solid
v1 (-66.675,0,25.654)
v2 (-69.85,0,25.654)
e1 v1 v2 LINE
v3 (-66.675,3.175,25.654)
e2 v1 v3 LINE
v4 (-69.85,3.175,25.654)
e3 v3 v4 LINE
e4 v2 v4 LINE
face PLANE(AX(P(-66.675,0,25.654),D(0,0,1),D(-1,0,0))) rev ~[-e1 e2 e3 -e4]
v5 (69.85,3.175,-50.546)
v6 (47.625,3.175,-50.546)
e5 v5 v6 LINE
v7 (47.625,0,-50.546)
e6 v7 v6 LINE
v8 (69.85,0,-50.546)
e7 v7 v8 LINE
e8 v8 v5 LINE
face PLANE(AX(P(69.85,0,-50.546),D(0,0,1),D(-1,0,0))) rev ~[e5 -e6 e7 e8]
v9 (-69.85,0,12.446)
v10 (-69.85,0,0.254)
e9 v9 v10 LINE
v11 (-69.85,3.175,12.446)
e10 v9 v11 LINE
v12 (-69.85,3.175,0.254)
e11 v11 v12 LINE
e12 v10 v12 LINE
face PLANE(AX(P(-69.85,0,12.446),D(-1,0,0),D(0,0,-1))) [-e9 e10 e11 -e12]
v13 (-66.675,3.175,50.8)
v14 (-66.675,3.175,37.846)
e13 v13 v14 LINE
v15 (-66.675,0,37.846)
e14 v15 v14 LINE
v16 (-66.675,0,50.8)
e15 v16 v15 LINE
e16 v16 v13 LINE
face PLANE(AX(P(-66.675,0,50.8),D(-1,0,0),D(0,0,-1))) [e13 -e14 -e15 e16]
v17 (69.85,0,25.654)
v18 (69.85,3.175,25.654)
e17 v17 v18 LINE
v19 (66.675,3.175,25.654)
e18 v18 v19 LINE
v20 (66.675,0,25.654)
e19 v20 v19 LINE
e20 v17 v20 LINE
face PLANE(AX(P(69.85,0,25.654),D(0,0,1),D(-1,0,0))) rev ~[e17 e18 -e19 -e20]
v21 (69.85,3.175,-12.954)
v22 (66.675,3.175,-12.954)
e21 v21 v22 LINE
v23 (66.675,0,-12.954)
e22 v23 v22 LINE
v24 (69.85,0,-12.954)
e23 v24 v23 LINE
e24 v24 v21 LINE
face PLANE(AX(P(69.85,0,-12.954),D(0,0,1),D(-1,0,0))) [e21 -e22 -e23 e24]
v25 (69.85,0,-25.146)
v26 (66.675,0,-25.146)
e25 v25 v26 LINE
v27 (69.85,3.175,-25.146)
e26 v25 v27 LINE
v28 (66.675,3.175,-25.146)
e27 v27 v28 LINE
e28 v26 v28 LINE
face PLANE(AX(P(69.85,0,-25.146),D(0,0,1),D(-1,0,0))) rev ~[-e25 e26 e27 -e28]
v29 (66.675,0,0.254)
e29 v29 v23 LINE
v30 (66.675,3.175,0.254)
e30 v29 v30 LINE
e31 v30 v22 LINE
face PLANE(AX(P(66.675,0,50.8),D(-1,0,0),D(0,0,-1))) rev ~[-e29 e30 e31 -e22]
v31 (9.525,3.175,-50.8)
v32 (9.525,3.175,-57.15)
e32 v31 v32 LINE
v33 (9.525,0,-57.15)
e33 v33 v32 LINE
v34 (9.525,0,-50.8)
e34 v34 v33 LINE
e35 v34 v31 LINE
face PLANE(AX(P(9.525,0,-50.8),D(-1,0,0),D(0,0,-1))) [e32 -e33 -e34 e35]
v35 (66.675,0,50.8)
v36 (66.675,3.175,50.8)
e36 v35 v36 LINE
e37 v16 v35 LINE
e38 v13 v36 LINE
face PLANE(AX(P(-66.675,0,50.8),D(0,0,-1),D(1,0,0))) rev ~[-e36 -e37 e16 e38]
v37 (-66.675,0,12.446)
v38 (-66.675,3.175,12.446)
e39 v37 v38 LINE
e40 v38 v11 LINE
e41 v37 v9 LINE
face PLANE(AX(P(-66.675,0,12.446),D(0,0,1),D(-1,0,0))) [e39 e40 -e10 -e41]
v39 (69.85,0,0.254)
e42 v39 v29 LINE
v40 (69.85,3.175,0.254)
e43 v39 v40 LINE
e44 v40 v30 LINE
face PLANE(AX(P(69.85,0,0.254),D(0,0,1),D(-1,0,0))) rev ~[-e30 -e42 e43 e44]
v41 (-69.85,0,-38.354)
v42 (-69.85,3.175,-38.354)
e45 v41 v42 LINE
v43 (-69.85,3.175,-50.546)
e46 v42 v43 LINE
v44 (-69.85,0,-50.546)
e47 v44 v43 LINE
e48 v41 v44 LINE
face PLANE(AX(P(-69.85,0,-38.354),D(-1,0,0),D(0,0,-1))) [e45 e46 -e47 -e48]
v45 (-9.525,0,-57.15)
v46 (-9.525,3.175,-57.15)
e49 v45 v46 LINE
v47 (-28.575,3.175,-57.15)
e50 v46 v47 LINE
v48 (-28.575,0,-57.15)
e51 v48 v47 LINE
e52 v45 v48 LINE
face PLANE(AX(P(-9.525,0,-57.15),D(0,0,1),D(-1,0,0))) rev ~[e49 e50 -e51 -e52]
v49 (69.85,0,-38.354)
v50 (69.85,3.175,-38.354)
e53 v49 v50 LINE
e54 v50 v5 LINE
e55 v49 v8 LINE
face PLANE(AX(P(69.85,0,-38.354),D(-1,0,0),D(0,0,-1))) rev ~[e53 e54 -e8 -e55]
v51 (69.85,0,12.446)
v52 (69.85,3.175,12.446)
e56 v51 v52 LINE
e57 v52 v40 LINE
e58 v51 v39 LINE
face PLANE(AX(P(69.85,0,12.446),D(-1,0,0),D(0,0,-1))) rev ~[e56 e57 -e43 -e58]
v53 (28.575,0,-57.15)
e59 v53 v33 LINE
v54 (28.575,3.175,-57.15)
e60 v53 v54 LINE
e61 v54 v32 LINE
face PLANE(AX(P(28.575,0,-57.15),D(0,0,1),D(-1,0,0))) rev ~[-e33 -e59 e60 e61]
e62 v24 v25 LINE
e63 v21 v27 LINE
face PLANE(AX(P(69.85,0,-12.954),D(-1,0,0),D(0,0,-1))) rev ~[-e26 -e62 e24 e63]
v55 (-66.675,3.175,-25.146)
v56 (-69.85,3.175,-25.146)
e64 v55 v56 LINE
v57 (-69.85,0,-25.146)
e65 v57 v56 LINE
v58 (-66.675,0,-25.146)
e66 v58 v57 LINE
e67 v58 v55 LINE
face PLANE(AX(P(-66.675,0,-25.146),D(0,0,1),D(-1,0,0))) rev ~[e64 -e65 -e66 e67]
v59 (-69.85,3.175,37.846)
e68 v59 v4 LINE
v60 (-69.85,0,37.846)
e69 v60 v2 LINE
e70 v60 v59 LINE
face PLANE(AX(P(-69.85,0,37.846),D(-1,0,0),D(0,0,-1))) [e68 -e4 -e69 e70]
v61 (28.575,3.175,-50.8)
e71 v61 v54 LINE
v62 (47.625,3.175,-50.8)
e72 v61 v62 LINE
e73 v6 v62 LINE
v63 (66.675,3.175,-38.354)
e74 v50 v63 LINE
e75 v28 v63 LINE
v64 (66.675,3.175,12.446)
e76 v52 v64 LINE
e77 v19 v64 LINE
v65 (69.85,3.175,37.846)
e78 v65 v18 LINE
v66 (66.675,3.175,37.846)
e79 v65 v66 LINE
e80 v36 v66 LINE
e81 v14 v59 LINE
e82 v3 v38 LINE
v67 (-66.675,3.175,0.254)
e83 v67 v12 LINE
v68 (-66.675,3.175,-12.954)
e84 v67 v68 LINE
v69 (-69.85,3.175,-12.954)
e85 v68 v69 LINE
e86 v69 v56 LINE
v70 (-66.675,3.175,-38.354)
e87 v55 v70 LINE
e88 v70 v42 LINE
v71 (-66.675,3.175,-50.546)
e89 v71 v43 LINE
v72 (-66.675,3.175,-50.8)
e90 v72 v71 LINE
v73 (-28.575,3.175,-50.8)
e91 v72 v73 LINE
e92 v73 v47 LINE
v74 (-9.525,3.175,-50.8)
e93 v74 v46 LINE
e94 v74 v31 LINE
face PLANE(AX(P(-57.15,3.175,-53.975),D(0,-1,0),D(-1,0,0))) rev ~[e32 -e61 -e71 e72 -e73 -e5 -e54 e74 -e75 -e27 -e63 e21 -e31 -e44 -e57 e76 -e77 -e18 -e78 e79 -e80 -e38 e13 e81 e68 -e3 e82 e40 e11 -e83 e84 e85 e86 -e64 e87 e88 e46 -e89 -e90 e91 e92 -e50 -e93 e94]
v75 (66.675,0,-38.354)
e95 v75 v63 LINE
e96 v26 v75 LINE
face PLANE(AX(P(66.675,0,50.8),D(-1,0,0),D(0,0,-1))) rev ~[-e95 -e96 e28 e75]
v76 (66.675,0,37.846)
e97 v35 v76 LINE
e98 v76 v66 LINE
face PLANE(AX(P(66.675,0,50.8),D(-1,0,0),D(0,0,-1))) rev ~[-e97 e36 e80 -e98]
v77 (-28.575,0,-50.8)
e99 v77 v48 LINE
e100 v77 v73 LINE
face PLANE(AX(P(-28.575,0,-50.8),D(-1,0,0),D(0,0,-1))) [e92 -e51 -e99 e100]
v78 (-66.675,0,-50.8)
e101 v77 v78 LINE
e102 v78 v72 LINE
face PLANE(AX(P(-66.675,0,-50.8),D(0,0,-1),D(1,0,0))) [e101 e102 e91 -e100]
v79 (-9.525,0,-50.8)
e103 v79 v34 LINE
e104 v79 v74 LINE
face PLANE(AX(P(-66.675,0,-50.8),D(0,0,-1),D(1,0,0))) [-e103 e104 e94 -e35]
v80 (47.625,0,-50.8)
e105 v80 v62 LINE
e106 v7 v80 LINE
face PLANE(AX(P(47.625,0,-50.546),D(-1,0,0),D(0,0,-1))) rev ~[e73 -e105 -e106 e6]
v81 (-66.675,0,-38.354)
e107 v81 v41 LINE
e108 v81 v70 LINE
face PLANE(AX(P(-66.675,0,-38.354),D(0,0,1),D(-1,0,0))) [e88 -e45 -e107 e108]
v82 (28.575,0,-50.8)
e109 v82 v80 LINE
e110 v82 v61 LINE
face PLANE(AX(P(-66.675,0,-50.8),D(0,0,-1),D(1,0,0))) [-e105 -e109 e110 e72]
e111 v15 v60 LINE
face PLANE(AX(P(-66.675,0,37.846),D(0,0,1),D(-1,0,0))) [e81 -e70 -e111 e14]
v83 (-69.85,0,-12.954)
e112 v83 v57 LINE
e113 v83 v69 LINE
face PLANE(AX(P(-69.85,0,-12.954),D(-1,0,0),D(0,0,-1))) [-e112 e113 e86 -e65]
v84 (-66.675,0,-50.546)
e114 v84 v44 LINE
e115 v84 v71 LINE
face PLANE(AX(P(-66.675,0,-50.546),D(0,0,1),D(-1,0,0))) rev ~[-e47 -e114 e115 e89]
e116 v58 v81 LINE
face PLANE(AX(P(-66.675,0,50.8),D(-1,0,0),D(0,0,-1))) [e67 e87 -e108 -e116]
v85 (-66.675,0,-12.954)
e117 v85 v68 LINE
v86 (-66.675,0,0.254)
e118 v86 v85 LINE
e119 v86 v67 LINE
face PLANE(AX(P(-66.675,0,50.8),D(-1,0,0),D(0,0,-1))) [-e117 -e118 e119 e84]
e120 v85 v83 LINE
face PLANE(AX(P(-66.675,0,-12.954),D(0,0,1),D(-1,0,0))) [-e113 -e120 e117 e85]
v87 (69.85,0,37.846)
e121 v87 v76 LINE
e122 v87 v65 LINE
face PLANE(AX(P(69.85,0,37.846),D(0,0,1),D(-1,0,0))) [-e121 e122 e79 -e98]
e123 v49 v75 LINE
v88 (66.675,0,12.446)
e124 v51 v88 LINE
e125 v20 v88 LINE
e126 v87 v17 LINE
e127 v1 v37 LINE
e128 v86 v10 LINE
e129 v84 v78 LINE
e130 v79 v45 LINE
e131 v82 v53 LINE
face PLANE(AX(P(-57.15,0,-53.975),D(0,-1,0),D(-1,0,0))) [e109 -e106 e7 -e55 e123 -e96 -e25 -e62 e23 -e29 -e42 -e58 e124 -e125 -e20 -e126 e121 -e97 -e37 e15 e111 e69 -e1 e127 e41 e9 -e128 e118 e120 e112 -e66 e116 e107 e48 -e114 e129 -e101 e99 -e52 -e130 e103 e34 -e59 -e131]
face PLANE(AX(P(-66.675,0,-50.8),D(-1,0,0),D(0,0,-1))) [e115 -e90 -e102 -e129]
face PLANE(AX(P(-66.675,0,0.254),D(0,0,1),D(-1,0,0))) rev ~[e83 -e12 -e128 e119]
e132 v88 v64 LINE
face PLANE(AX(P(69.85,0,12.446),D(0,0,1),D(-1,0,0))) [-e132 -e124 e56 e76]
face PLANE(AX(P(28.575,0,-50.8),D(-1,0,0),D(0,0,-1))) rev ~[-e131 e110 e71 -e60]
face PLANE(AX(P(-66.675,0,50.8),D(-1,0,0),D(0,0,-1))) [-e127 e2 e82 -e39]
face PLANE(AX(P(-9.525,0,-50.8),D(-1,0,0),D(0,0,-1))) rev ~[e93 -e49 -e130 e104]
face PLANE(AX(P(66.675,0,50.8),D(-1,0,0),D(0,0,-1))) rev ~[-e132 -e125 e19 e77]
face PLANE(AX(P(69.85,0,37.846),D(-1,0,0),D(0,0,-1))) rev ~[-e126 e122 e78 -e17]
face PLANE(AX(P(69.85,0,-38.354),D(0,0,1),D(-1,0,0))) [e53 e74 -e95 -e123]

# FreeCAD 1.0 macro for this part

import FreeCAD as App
import Part
import Sketcher
from FreeCAD import Vector
Q = App.Units.Quantity

doc = App.newDocument("Part")
body = doc.addObject("PartDesign::Body", "Body")

sketch1 = doc.addObject("Sketcher::SketchObject", "Sketch")
body.addObject(sketch1)
sketch1.AttachmentSupport = (doc.XZ_Plane, [""])
sketch1.MapMode = "FlatFace"
sketch1.addGeometry([
    Part.LineSegment(Vector(-66.675, -50.8, 0), Vector(-66.675, 50.8, 0)),
    Part.LineSegment(Vector(-66.675, 50.8, 0), Vector(66.675, 50.8, 0)),
    Part.LineSegment(Vector(66.675, 50.8, 0), Vector(66.675, -50.8, 0)),
    Part.LineSegment(Vector(66.675, -50.8, 0), Vector(-66.675, -50.8, 0)),
], False)
sketch1.addConstraint([
    Sketcher.Constraint("Coincident", 0, 2, 1, 1),
    Sketcher.Constraint("Coincident", 1, 2, 2, 1),
    Sketcher.Constraint("Coincident", 2, 2, 3, 1),
    Sketcher.Constraint("Coincident", 3, 2, 0, 1),
    Sketcher.Constraint("Vertical", 0),
    Sketcher.Constraint("Horizontal", 1),
    Sketcher.Constraint("Vertical", 2),
    Sketcher.Constraint("Horizontal", 3),
    Sketcher.Constraint("Symmetric", 0, 2, 2, 2, -1, 1),
    Sketcher.Constraint("DistanceY", 0, 1, 0, 2, Q("4 in")),
    Sketcher.Constraint("DistanceX", 1, 1, 1, 2, Q("5.25 in")),
])
pad1 = doc.addObject("PartDesign::Pad", "Pad")
body.addObject(pad1)
pad1.Profile = sketch1
pad1.Length = Q("0.125 in")
pad1.Reversed = True

sketch2 = doc.addObject("Sketcher::SketchObject", "Sketch001")
body.addObject(sketch2)
sketch2.AttachmentSupport = (doc.XZ_Plane, [""])
sketch2.MapMode = "FlatFace"
sketch2.addGeometry([
    Part.LineSegment(Vector(-66.675, 25.654, 0), Vector(-66.675, 37.846, 0)),
    Part.LineSegment(Vector(-66.675, 37.846, 0), Vector(-69.85, 37.846, 0)),
    Part.LineSegment(Vector(-69.85, 37.846, 0), Vector(-69.85, 25.654, 0)),
    Part.LineSegment(Vector(-69.85, 25.654, 0), Vector(-66.675, 25.654, 0)),
    Part.LineSegment(Vector(-66.675, 0.254, 0), Vector(-66.675, 12.446, 0)),
    Part.LineSegment(Vector(-66.675, 12.446, 0), Vector(-69.85, 12.446, 0)),
    Part.LineSegment(Vector(-69.85, 12.446, 0), Vector(-69.85, 0.254, 0)),
    Part.LineSegment(Vector(-69.85, 0.254, 0), Vector(-66.675, 0.254, 0)),
    Part.LineSegment(Vector(-66.675, -25.146, 0), Vector(-66.675, -12.954, 0)),
    Part.LineSegment(Vector(-66.675, -12.954, 0), Vector(-69.85, -12.954, 0)),
    Part.LineSegment(Vector(-69.85, -12.954, 0), Vector(-69.85, -25.146, 0)),
    Part.LineSegment(Vector(-69.85, -25.146, 0), Vector(-66.675, -25.146, 0)),
    Part.LineSegment(Vector(-66.675, -50.546, 0), Vector(-66.675, -38.354, 0)),
    Part.LineSegment(Vector(-66.675, -38.354, 0), Vector(-69.85, -38.354, 0)),
    Part.LineSegment(Vector(-69.85, -38.354, 0), Vector(-69.85, -50.546, 0)),
    Part.LineSegment(Vector(-69.85, -50.546, 0), Vector(-66.675, -50.546, 0)),
    Part.LineSegment(Vector(69.85, -50.546, 0), Vector(69.85, -38.354, 0)),
    Part.LineSegment(Vector(69.85, -38.354, 0), Vector(66.675, -38.354, 0)),
    Part.LineSegment(Vector(66.675, -38.354, 0), Vector(66.675, -50.546, 0)),
    Part.LineSegment(Vector(66.675, -50.546, 0), Vector(69.85, -50.546, 0)),
    Part.LineSegment(Vector(69.85, -25.146, 0), Vector(69.85, -12.954, 0)),
    Part.LineSegment(Vector(69.85, -12.954, 0), Vector(66.675, -12.954, 0)),
    Part.LineSegment(Vector(66.675, -12.954, 0), Vector(66.675, -25.146, 0)),
    Part.LineSegment(Vector(66.675, -25.146, 0), Vector(69.85, -25.146, 0)),
    Part.LineSegment(Vector(69.85, 0.254, 0), Vector(69.85, 12.446, 0)),
    Part.LineSegment(Vector(69.85, 12.446, 0), Vector(66.675, 12.446, 0)),
    Part.LineSegment(Vector(66.675, 12.446, 0), Vector(66.675, 0.254, 0)),
    Part.LineSegment(Vector(66.675, 0.254, 0), Vector(69.85, 0.254, 0)),
    Part.LineSegment(Vector(69.85, 25.654, 0), Vector(69.85, 37.846, 0)),
    Part.LineSegment(Vector(69.85, 37.846, 0), Vector(66.675, 37.846, 0)),
    Part.LineSegment(Vector(66.675, 37.846, 0), Vector(66.675, 25.654, 0)),
    Part.LineSegment(Vector(66.675, 25.654, 0), Vector(69.85, 25.654, 0)),
    Part.LineSegment(Vector(-9.525, -57.15, 0), Vector(-9.525, -50.8, 0)),
    Part.LineSegment(Vector(-9.525, -50.8, 0), Vector(-28.575, -50.8, 0)),
    Part.LineSegment(Vector(-28.575, -50.8, 0), Vector(-28.575, -57.15, 0)),
    Part.LineSegment(Vector(-28.575, -57.15, 0), Vector(-9.525, -57.15, 0)),
    Part.LineSegment(Vector(-47.625, -57.15, 0), Vector(-47.625, -50.8, 0)),
    Part.LineSegment(Vector(-47.625, -50.8, 0), Vector(-66.675, -50.8, 0)),
    Part.LineSegment(Vector(-66.675, -50.8, 0), Vector(-66.675, -57.15, 0)),
    Part.LineSegment(Vector(-66.675, -57.15, 0), Vector(-47.625, -57.15, 0)),
    Part.LineSegment(Vector(28.575, -57.15, 0), Vector(28.575, -50.8, 0)),
    Part.LineSegment(Vector(28.575, -50.8, 0), Vector(9.525, -50.8, 0)),
    Part.LineSegment(Vector(9.525, -50.8, 0), Vector(9.525, -57.15, 0)),
    Part.LineSegment(Vector(9.525, -57.15, 0), Vector(28.575, -57.15, 0)),
    Part.LineSegment(Vector(66.675, -57.15, 0), Vector(66.675, -50.8, 0)),
    Part.LineSegment(Vector(66.675, -50.8, 0), Vector(47.625, -50.8, 0)),
    Part.LineSegment(Vector(47.625, -50.8, 0), Vector(47.625, -57.15, 0)),
    Part.LineSegment(Vector(47.625, -57.15, 0), Vector(66.675, -57.15, 0)),
], False)
sketch2.addConstraint([
    Sketcher.Constraint("Coincident", 0, 2, 1, 1),
    Sketcher.Constraint("Coincident", 1, 2, 2, 1),
    Sketcher.Constraint("Coincident", 2, 2, 3, 1),
    Sketcher.Constraint("Coincident", 3, 2, 0, 1),
    Sketcher.Constraint("Coincident", 4, 2, 5, 1),
    Sketcher.Constraint("Coincident", 5, 2, 6, 1),
    Sketcher.Constraint("Coincident", 6, 2, 7, 1),
    Sketcher.Constraint("Coincident", 7, 2, 4, 1),
    Sketcher.Constraint("Coincident", 8, 2, 9, 1),
    Sketcher.Constraint("Coincident", 9, 2, 10, 1),
    Sketcher.Constraint("Coincident", 10, 2, 11, 1),
    Sketcher.Constraint("Coincident", 11, 2, 8, 1),
    Sketcher.Constraint("Coincident", 12, 2, 13, 1),
    Sketcher.Constraint("Coincident", 13, 2, 14, 1),
    Sketcher.Constraint("Coincident", 14, 2, 15, 1),
    Sketcher.Constraint("Coincident", 15, 2, 12, 1),
    Sketcher.Constraint("Coincident", 16, 2, 17, 1),
    Sketcher.Constraint("Coincident", 17, 2, 18, 1),
    Sketcher.Constraint("Coincident", 18, 2, 19, 1),
    Sketcher.Constraint("Coincident", 19, 2, 16, 1),
    Sketcher.Constraint("Coincident", 20, 2, 21, 1),
    Sketcher.Constraint("Coincident", 21, 2, 22, 1),
    Sketcher.Constraint("Coincident", 22, 2, 23, 1),
    Sketcher.Constraint("Coincident", 23, 2, 20, 1),
    Sketcher.Constraint("Coincident", 24, 2, 25, 1),
    Sketcher.Constraint("Coincident", 25, 2, 26, 1),
    Sketcher.Constraint("Coincident", 26, 2, 27, 1),
    Sketcher.Constraint("Coincident", 27, 2, 24, 1),
    Sketcher.Constraint("Coincident", 28, 2, 29, 1),
    Sketcher.Constraint("Coincident", 29, 2, 30, 1),
    Sketcher.Constraint("Coincident", 30, 2, 31, 1),
    Sketcher.Constraint("Coincident", 31, 2, 28, 1),
    Sketcher.Constraint("Coincident", 32, 2, 33, 1),
    Sketcher.Constraint("Coincident", 33, 2, 34, 1),
    Sketcher.Constraint("Coincident", 34, 2, 35, 1),
    Sketcher.Constraint("Coincident", 35, 2, 32, 1),
    Sketcher.Constraint("Coincident", 36, 2, 37, 1),
    Sketcher.Constraint("Coincident", 37, 2, 38, 1),
    Sketcher.Constraint("Coincident", 38, 2, 39, 1),
    Sketcher.Constraint("Coincident", 39, 2, 36, 1),
    Sketcher.Constraint("Coincident", 40, 2, 41, 1),
    Sketcher.Constraint("Coincident", 41, 2, 42, 1),
    Sketcher.Constraint("Coincident", 42, 2, 43, 1),
    Sketcher.Constraint("Coincident", 43, 2, 40, 1),
    Sketcher.Constraint("Coincident", 44, 2, 45, 1),
    Sketcher.Constraint("Coincident", 45, 2, 46, 1),
    Sketcher.Constraint("Coincident", 46, 2, 47, 1),
    Sketcher.Constraint("Coincident", 47, 2, 44, 1),
    Sketcher.Constraint("Vertical", 0),
    Sketcher.Constraint("Horizontal", 1),
    Sketcher.Constraint("Vertical", 2),
    Sketcher.Constraint("Horizontal", 3),
    Sketcher.Constraint("Vertical", 4),
    Sketcher.Constraint("Horizontal", 5),
    Sketcher.Constraint("Vertical", 6),
    Sketcher.Constraint("Horizontal", 7),
    Sketcher.Constraint("Vertical", 8),
    Sketcher.Constraint("Horizontal", 9),
    Sketcher.Constraint("Vertical", 10),
    Sketcher.Constraint("Horizontal", 11),
    Sketcher.Constraint("Vertical", 12),
    Sketcher.Constraint("Horizontal", 13),
    Sketcher.Constraint("Vertical", 14),
    Sketcher.Constraint("Horizontal", 15),
    Sketcher.Constraint("Vertical", 16),
    Sketcher.Constraint("Horizontal", 17),
    Sketcher.Constraint("Vertical", 18),
    Sketcher.Constraint("Horizontal", 19),
    Sketcher.Constraint("Vertical", 20),
    Sketcher.Constraint("Horizontal", 21),
    Sketcher.Constraint("Vertical", 22),
    Sketcher.Constraint("Horizontal", 23),
    Sketcher.Constraint("Vertical", 24),
    Sketcher.Constraint("Horizontal", 25),
    Sketcher.Constraint("Vertical", 26),
    Sketcher.Constraint("Horizontal", 27),
    Sketcher.Constraint("Vertical", 28),
    Sketcher.Constraint("Horizontal", 29),
    Sketcher.Constraint("Vertical", 30),
    Sketcher.Constraint("Horizontal", 31),
    Sketcher.Constraint("Vertical", 32),
    Sketcher.Constraint("Horizontal", 33),
    Sketcher.Constraint("Vertical", 34),
    Sketcher.Constraint("Horizontal", 35),
    Sketcher.Constraint("Vertical", 36),
    Sketcher.Constraint("Horizontal", 37),
    Sketcher.Constraint("Vertical", 38),
    Sketcher.Constraint("Horizontal", 39),
    Sketcher.Constraint("Vertical", 40),
    Sketcher.Constraint("Horizontal", 41),
    Sketcher.Constraint("Vertical", 42),
    Sketcher.Constraint("Horizontal", 43),
    Sketcher.Constraint("Vertical", 44),
    Sketcher.Constraint("Horizontal", 45),
    Sketcher.Constraint("Vertical", 46),
    Sketcher.Constraint("Horizontal", 47),
    Sketcher.Constraint("Symmetric", 13, 2, 16, 2, -2),
    Sketcher.Constraint("Symmetric", 15, 2, 18, 2, -2),
    Sketcher.Constraint("Symmetric", 9, 2, 20, 2, -2),
    Sketcher.Constraint("Symmetric", 11, 2, 22, 2, -2),
    Sketcher.Constraint("Symmetric", 5, 2, 24, 2, -2),
    Sketcher.Constraint("Symmetric", 7, 2, 26, 2, -2),
    Sketcher.Constraint("Symmetric", 1, 2, 28, 2, -2),
    Sketcher.Constraint("Symmetric", 3, 2, 30, 2, -2),
    Sketcher.Constraint("Symmetric", 33, 2, 40, 2, -2),
    Sketcher.Constraint("Symmetric", 35, 2, 42, 2, -2),
    Sketcher.Constraint("Symmetric", 37, 2, 44, 2, -2),
    Sketcher.Constraint("Symmetric", 39, 2, 46, 2, -2),
    Sketcher.Constraint("Horizontal", 33, 2, 36, 2),
    Sketcher.Constraint("Horizontal", 35, 2, 38, 2),
    Sketcher.Constraint("Vertical", 3, 2, 4, 2),
    Sketcher.Constraint("Vertical", 2, 2, 5, 2),
    Sketcher.Constraint("Vertical", 7, 2, 8, 2),
    Sketcher.Constraint("Vertical", 6, 2, 9, 2),
    Sketcher.Constraint("Vertical", 11, 2, 12, 2),
    Sketcher.Constraint("Vertical", 10, 2, 13, 2),
    Sketcher.Constraint("Vertical", 15, 2, 37, 2),
    Sketcher.Constraint("Equal", 35, 37),
    Sketcher.Constraint("Equal", 2, 4),
    Sketcher.Constraint("Equal", 6, 8),
    Sketcher.Constraint("Equal", 10, 12),
    Sketcher.Constraint("DistanceY", 32, 2, -1, 1, Q("2 in")),
    Sketcher.Constraint("DistanceY", 4, 2, 0, 2, Q("1 in")),
    Sketcher.Constraint("DistanceY", 8, 2, 4, 2, Q("1 in")),
    Sketcher.Constraint("DistanceY", 12, 2, 8, 2, Q("1 in")),
    Sketcher.Constraint("DistanceX", 33, 2, 33, 1, Q("0.75 in")),
    Sketcher.Constraint("DistanceY", 0, 1, 0, 2, Q("0.48 in")),
    Sketcher.Constraint("DistanceY", 32, 1, 32, 2, Q("0.25 in")),
    Sketcher.Constraint("DistanceX", 13, 2, 16, 2, Q("5.5 in")),
    Sketcher.Constraint("DistanceX", 15, 2, 33, 2, Q("1.5 in")),
    Sketcher.Constraint("DistanceX", 32, 2, 40, 2, Q("1.5 in")),
    Sketcher.Constraint("DistanceY", -1, 1, 0, 2, Q("1.49 in")),
])
pad2 = doc.addObject("PartDesign::Pad", "Pad001")
body.addObject(pad2)
pad2.Profile = sketch2
pad2.Length = Q("0.125 in")
pad2.Reversed = True

sketch3 = doc.addObject("Sketcher::SketchObject", "Sketch002")
body.addObject(sketch3)
sketch3.AttachmentSupport = (doc.XZ_Plane, [""])
sketch3.MapMode = "FlatFace"
sketch3.addGeometry([
    Part.LineSegment(Vector(-66.675, -57.15, 0), Vector(-66.675, -50.8, 0)),
    Part.LineSegment(Vector(-66.675, -50.8, 0), Vector(-47.625, -50.8, 0)),
    Part.LineSegment(Vector(-47.625, -50.8, 0), Vector(-47.625, -57.15, 0)),
    Part.LineSegment(Vector(-47.625, -57.15, 0), Vector(-66.675, -57.15, 0)),
    Part.LineSegment(Vector(47.625, -57.15, 0), Vector(47.625, -50.546, 0)),
    Part.LineSegment(Vector(47.625, -50.546, 0), Vector(66.675, -50.546, 0)),
    Part.LineSegment(Vector(66.675, -50.546, 0), Vector(66.675, -57.15, 0)),
    Part.LineSegment(Vector(66.675, -57.15, 0), Vector(47.625, -57.15, 0)),
], False)
sketch3.addConstraint([
    Sketcher.Constraint("Coincident", 0, 2, 1, 1),
    Sketcher.Constraint("Coincident", 1, 2, 2, 1),
    Sketcher.Constraint("Coincident", 2, 2, 3, 1),
    Sketcher.Constraint("Coincident", 3, 2, 0, 1),
    Sketcher.Constraint("Coincident", 4, 2, 5, 1),
    Sketcher.Constraint("Coincident", 5, 2, 6, 1),
    Sketcher.Constraint("Coincident", 6, 2, 7, 1),
    Sketcher.Constraint("Coincident", 7, 2, 4, 1),
    Sketcher.Constraint("Vertical", 0),
    Sketcher.Constraint("Horizontal", 1),
    Sketcher.Constraint("Vertical", 2),
    Sketcher.Constraint("Horizontal", 3),
    Sketcher.Constraint("Vertical", 4),
    Sketcher.Constraint("Horizontal", 5),
    Sketcher.Constraint("Vertical", 6),
    Sketcher.Constraint("Horizontal", 7),
    Sketcher.Constraint("Symmetric", 3, 2, 6, 2, -2),
    Sketcher.Constraint("Equal", 3, 5),
    Sketcher.Constraint("DistanceY", 0, 2, -1, 1, Q("2 in")),
    Sketcher.Constraint("DistanceX", 1, 1, 1, 2, Q("0.75 in")),
    Sketcher.Constraint("DistanceY", 0, 1, 0, 2, Q("0.25 in")),
    Sketcher.Constraint("DistanceY", 4, 1, 4, 2, Q("0.26 in")),
    Sketcher.Constraint("DistanceX", 0, 2, 4, 2, Q("4.5 in")),
])
pocket1 = doc.addObject("PartDesign::Pocket", "Pocket")
body.addObject(pocket1)
pocket1.Profile = sketch3
pocket1.Type = "ThroughAll"

doc.recompute()
